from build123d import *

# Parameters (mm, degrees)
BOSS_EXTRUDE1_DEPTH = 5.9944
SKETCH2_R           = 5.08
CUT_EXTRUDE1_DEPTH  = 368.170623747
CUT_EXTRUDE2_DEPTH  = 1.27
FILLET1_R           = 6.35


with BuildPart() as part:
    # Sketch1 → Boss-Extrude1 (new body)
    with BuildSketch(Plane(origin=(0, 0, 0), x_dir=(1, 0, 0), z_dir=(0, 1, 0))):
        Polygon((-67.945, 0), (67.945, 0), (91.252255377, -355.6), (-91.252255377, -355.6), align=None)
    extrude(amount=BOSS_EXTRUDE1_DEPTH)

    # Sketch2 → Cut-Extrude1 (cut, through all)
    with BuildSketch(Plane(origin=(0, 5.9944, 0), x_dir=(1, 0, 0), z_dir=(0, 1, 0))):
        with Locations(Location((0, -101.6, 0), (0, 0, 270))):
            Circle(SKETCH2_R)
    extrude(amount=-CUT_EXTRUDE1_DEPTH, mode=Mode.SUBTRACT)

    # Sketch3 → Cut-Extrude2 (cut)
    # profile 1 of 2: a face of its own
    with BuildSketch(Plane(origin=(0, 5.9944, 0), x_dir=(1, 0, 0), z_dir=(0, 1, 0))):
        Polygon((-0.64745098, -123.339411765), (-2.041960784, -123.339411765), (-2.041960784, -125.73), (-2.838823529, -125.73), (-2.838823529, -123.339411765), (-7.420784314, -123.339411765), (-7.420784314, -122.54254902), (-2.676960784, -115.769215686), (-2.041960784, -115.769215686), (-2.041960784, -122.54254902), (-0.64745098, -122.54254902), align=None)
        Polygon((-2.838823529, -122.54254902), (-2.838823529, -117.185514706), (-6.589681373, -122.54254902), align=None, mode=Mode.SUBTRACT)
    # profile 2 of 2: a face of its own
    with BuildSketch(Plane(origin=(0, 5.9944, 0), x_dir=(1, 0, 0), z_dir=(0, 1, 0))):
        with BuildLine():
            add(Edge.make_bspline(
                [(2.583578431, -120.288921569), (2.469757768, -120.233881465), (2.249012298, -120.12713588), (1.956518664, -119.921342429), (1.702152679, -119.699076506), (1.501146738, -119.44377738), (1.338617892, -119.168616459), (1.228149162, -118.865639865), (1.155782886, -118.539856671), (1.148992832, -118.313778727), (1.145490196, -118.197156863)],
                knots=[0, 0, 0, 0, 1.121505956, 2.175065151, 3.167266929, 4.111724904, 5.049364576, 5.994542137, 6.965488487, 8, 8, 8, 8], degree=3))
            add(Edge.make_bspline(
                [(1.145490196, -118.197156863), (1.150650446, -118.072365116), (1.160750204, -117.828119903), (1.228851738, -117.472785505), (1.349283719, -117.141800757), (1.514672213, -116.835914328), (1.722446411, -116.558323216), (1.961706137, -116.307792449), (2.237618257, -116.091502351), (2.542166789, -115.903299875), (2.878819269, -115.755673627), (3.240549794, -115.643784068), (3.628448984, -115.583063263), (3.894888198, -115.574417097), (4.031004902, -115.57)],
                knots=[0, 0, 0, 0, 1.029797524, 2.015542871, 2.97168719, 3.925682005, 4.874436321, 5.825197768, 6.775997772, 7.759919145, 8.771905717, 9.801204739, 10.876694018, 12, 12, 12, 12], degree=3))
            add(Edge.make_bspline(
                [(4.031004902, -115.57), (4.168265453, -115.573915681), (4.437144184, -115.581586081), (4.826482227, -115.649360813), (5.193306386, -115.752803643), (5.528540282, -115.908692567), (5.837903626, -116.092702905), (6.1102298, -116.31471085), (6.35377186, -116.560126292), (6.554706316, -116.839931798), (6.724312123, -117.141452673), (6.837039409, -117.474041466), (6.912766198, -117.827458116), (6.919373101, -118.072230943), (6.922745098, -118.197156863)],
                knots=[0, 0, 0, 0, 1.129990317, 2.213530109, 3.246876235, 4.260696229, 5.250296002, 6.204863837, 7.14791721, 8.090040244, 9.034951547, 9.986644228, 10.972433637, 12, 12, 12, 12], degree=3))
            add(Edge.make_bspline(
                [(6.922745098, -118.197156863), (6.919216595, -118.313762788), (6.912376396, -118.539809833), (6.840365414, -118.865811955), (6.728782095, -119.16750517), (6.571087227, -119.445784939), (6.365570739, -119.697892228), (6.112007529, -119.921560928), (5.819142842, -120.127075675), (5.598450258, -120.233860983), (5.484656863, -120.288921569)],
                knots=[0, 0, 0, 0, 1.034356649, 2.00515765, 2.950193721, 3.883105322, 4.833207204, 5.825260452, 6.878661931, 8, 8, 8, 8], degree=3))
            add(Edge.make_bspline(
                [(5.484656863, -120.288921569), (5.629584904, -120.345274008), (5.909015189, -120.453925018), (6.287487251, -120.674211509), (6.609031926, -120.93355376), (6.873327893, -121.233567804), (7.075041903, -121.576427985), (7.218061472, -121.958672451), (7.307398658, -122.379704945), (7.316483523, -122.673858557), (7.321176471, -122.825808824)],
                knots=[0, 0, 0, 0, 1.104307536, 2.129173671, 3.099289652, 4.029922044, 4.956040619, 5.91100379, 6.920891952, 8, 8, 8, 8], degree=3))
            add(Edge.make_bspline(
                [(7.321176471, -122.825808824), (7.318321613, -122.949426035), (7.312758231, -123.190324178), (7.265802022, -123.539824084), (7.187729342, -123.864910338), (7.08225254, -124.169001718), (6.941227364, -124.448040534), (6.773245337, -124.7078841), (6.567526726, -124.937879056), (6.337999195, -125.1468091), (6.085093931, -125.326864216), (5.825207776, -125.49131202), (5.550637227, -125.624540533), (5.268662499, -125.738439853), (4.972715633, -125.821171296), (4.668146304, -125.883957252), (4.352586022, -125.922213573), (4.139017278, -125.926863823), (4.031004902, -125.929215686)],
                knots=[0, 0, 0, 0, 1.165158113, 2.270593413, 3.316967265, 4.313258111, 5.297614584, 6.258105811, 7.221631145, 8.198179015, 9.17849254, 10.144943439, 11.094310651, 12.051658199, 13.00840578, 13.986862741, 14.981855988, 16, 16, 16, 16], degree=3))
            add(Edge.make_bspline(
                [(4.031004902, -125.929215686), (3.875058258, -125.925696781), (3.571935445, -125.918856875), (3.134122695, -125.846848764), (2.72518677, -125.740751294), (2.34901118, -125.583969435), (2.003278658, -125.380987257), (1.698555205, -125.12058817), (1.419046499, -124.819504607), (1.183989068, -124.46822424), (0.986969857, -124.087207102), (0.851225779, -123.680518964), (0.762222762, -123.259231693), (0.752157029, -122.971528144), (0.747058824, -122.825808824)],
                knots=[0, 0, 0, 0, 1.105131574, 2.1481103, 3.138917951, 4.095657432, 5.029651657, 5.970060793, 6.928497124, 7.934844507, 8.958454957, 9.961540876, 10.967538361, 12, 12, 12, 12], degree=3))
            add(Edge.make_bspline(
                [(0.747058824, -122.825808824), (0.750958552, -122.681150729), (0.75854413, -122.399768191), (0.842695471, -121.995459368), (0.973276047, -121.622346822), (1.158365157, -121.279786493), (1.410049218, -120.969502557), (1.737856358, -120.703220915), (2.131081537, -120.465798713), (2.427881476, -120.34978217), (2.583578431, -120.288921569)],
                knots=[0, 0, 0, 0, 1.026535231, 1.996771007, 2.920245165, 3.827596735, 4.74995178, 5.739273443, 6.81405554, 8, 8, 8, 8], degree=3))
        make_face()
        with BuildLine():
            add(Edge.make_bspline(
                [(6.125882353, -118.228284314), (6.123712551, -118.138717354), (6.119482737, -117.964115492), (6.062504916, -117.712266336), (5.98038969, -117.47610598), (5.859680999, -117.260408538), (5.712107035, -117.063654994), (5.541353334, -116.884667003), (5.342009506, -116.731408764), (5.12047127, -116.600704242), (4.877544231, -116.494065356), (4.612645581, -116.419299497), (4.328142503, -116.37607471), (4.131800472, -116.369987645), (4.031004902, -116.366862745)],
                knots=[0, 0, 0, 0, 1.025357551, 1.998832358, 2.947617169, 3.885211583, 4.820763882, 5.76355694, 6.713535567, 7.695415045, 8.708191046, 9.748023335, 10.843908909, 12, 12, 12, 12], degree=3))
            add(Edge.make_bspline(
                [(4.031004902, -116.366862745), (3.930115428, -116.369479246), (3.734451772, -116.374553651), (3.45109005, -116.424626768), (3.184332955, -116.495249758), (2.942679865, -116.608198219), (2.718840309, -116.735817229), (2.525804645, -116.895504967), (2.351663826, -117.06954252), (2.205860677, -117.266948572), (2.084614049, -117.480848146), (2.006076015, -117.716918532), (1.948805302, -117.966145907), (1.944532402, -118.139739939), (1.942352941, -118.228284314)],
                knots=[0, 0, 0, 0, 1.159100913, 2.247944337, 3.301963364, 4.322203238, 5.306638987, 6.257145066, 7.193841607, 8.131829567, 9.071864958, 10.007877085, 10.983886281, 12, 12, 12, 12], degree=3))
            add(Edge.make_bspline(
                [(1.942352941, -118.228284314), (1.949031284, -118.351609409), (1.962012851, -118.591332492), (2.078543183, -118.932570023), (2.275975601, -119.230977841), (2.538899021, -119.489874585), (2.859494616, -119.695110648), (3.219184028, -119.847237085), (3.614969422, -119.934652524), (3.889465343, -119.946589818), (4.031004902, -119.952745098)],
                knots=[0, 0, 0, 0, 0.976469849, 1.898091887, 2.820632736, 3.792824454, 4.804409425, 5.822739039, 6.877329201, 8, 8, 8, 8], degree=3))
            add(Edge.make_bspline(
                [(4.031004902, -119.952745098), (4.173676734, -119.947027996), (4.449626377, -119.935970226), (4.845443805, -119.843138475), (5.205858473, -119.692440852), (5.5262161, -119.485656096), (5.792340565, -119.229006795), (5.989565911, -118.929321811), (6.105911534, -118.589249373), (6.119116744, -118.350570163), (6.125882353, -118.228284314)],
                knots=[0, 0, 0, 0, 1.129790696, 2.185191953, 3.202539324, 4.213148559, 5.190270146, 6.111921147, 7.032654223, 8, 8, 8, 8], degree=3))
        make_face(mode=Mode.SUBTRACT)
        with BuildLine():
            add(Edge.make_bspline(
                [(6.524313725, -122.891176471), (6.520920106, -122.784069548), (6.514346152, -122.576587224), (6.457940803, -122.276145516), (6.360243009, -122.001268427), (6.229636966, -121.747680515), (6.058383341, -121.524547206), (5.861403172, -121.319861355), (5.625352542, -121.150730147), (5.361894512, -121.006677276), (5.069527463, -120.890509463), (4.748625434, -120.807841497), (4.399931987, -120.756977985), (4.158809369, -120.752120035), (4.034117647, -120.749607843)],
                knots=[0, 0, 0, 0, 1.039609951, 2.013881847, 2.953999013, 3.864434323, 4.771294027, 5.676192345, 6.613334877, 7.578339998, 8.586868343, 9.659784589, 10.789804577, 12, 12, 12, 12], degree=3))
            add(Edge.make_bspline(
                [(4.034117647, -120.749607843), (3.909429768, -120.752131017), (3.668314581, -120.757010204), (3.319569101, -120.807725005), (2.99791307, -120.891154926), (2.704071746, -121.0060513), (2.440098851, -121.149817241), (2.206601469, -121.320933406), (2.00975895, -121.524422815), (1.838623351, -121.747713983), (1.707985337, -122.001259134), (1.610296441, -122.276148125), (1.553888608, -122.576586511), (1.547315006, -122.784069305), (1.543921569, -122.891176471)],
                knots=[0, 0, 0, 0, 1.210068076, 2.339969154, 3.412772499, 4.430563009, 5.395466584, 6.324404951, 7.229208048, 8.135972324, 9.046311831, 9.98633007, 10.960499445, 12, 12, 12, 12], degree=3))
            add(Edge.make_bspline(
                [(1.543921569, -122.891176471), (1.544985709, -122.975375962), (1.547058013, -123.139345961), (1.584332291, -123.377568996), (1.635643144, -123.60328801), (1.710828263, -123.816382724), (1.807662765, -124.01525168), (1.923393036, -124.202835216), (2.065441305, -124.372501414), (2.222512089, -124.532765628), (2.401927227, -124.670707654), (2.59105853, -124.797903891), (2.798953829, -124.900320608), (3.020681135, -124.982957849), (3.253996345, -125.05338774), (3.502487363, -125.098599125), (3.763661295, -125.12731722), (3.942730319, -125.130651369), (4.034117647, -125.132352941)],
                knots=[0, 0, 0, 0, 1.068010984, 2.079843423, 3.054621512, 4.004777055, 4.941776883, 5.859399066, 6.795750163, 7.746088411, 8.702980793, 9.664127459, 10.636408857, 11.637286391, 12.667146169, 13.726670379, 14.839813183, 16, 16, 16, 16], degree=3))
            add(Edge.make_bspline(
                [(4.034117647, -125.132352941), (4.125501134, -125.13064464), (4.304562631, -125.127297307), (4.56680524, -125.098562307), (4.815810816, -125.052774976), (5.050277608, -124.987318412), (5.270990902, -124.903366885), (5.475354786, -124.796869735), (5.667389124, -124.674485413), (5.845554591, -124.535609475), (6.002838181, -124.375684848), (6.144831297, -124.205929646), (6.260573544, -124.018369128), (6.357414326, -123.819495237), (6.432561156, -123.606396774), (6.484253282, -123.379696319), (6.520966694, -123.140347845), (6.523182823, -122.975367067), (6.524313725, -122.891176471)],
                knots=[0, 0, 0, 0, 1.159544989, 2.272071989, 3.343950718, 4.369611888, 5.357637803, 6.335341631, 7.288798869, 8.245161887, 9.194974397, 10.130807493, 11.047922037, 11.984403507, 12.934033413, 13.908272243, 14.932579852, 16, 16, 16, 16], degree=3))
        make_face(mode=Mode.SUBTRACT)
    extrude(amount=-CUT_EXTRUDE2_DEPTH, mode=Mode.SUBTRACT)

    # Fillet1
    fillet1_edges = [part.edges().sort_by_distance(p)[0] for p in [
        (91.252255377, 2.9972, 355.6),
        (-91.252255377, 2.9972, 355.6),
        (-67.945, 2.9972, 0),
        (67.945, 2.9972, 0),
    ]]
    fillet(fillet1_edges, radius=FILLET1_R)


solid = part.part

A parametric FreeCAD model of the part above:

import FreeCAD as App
import Part
import Sketcher

V = App.Vector
Q = App.Units.Quantity


def edges_at(feature, points):
    """Names of the edges that pass closest to the given points."""
    edges = feature.Shape.Edges
    near = lambda p: min(range(len(edges)), key=lambda i: edges[i].distToShape(Part.Vertex(*p))[0])
    return sorted({f"Edge{near(p) + 1}" for p in points})


def add_polygon(sketch, points):
    """Adds a closed chain of lines whose ends are joined by coincident constraints."""
    first, n = sketch.GeometryCount, len(points)
    for a, b in zip(points, points[1:] + points[:1]):
        sketch.addGeometry(Part.LineSegment(App.Vector(*a, 0), App.Vector(*b, 0)), False)
    for i in range(n):
        sketch.addConstraint(Sketcher.Constraint("Coincident", first + i, 2, first + (i + 1) % n, 1))

doc = App.newDocument("Part")
body = doc.addObject("PartDesign::Body", "Body")

# Sketch on XZ plane
sketch1 = body.newObject("Sketcher::SketchObject", "Sketch")
sketch1.AttachmentSupport = (doc.getObject("XZ_Plane"), [""])
sketch1.MapMode = "FlatFace"
add_polygon(sketch1, [(67.945, 0), (-67.945, 0), (-91.252255, 355.6), (91.252255, 355.6)])  # lines 0-3
sketch1.addConstraint([
    Sketcher.Constraint("Horizontal", 0),
    Sketcher.Constraint("Horizontal", 2),
    Sketcher.Constraint("Symmetric", 0, 2, 3, 2, -1, 1),
    Sketcher.Constraint("Equal", 1, 3),
    Sketcher.Constraint("DistanceY", -1, 1, 1, 2, Q("14 in")),
    Sketcher.Constraint("DistanceX", 0, 2, 0, 1, Q("5.35 in")),
    Sketcher.Constraint("Angle", 1, Q("93.75 deg")),
])
pad1 = body.newObject("PartDesign::Pad", "Pad")
pad1.Profile = sketch1
pad1.Length = Q("0.236 in")
pad1.Reversed = True

# Sketch on XZ plane
sketch2 = body.newObject("Sketcher::SketchObject", "Sketch001")
sketch2.AttachmentSupport = (doc.getObject("XZ_Plane"), [""])
sketch2.MapMode = "FlatFace"
sketch2.AttachmentOffset = App.Placement(V(0, 0, -0.236 * 25.4), App.Rotation())
sketch2.addGeometry(Part.Circle(V(0, 101.6, 0), V(0, 0, 1), 5.08), False)
sketch2.addConstraint([
    Sketcher.Constraint("PointOnObject", 0, 3, -2),
    Sketcher.Constraint("Diameter", 0, Q("0.4 in")),
    Sketcher.Constraint("DistanceY", -1, 1, 0, 3, Q("4 in")),
])
pocket1 = body.newObject("PartDesign::Pocket", "Pocket")
pocket1.Profile = sketch2
pocket1.Type = "ThroughAll"
pocket1.Reversed = True

# Sketch on XZ plane
sketch3 = body.newObject("Sketcher::SketchObject", "Sketch002")
sketch3.AttachmentSupport = (doc.getObject("XZ_Plane"), [""])
sketch3.MapMode = "FlatFace"
sketch3.AttachmentOffset = App.Placement(V(0, 0, -0.236 * 25.4), App.Rotation())
add_polygon(sketch3, [(-2.041961, 123.339412), (-0.647451, 123.339412), (-0.647451, 122.542549), (-2.041961, 122.542549), (-2.041961, 115.769216), (-2.676961, 115.769216), (-7.420784, 122.542549), (-7.420784, 123.339412), (-2.838824, 123.339412), (-2.838824, 125.73), (-2.041961, 125.73)])  # lines 0-10
add_polygon(sketch3, [(-2.838824, 122.542549), (-6.589681, 122.542549), (-2.838824, 117.185515)])  # lines 11-13
sketch3.addGeometry(Part.BSplineCurve([V(2.583578, 120.288922, 0), V(2.469758, 120.233881, 0), V(2.249012, 120.127136, 0), V(1.956519, 119.921342, 0), V(1.702153, 119.699077, 0), V(1.501147, 119.443777, 0), V(1.338618, 119.168616, 0), V(1.228149, 118.86564, 0), V(1.155783, 118.539857, 0), V(1.148993, 118.313779, 0), V(1.14549, 118.197157, 0)], [4, 1, 1, 1, 1, 1, 1, 1, 4], [0, 1.121505956, 2.175065151, 3.167266929, 4.111724904, 5.049364576, 5.994542137, 6.965488487, 8], False, 3, [1, 1, 1, 1, 1, 1, 1, 1, 1, 1, 1], False), False)  # 14
sketch3.addGeometry(Part.BSplineCurve([V(0.747059, 122.825809, 0), V(0.750959, 122.681151, 0), V(0.758544, 122.399768, 0), V(0.842695, 121.995459, 0), V(0.973276, 121.622347, 0), V(1.158365, 121.279786, 0), V(1.410049, 120.969503, 0), V(1.737856, 120.703221, 0), V(2.131082, 120.465799, 0), V(2.427881, 120.349782, 0), V(2.583578, 120.288922, 0)], [4, 1, 1, 1, 1, 1, 1, 1, 4], [0, 1.026535231, 1.996771007, 2.920245165, 3.827596735, 4.74995178, 5.739273443, 6.81405554, 8], False, 3, [1, 1, 1, 1, 1, 1, 1, 1, 1, 1, 1], False), False)  # 15
sketch3.addGeometry(Part.BSplineCurve([V(4.031005, 125.929216, 0), V(3.875058, 125.925697, 0), V(3.571935, 125.918857, 0), V(3.134123, 125.846849, 0), V(2.725187, 125.740751, 0), V(2.349011, 125.583969, 0), V(2.003279, 125.380987, 0), V(1.698555, 125.120588, 0), V(1.419046, 124.819505, 0), V(1.183989, 124.468224, 0), V(0.98697, 124.087207, 0), V(0.851226, 123.680519, 0), V(0.762223, 123.259232, 0), V(0.752157, 122.971528, 0), V(0.747059, 122.825809, 0)], [4, 1, 1, 1, 1, 1, 1, 1, 1, 1, 1, 1, 4], [0, 1.105131574, 2.1481103, 3.138917951, 4.095657432, 5.029651657, 5.970060793, 6.928497124, 7.934844507, 8.958454957, 9.961540876, 10.967538361, 12], False, 3, [1, 1, 1, 1, 1, 1, 1, 1, 1, 1, 1, 1, 1, 1, 1], False), False)  # 16
sketch3.addGeometry(Part.BSplineCurve([V(7.321176, 122.825809, 0), V(7.318322, 122.949426, 0), V(7.312758, 123.190324, 0), V(7.265802, 123.539824, 0), V(7.187729, 123.86491, 0), V(7.082253, 124.169002, 0), V(6.941227, 124.448041, 0), V(6.773245, 124.707884, 0), V(6.567527, 124.937879, 0), V(6.337999, 125.146809, 0), V(6.085094, 125.326864, 0), V(5.825208, 125.491312, 0), V(5.550637, 125.624541, 0), V(5.268662, 125.73844, 0), V(4.972716, 125.821171, 0), V(4.668146, 125.883957, 0), V(4.352586, 125.922214, 0), V(4.139017, 125.926864, 0), V(4.031005, 125.929216, 0)], [4, 1, 1, 1, 1, 1, 1, 1, 1, 1, 1, 1, 1, 1, 1, 1, 4], [0, 1.165158113, 2.270593413, 3.316967265, 4.313258111, 5.297614584, 6.258105811, 7.221631145, 8.198179015, 9.17849254, 10.144943439, 11.094310651, 12.051658199, 13.00840578, 13.986862741, 14.981855988, 16], False, 3, [1, 1, 1, 1, 1, 1, 1, 1, 1, 1, 1, 1, 1, 1, 1, 1, 1, 1, 1], False), False)  # 17
sketch3.addGeometry(Part.BSplineCurve([V(5.484657, 120.288922, 0), V(5.629585, 120.345274, 0), V(5.909015, 120.453925, 0), V(6.287487, 120.674212, 0), V(6.609032, 120.933554, 0), V(6.873328, 121.233568, 0), V(7.075042, 121.576428, 0), V(7.218061, 121.958672, 0), V(7.307399, 122.379705, 0), V(7.316484, 122.673859, 0), V(7.321176, 122.825809, 0)], [4, 1, 1, 1, 1, 1, 1, 1, 4], [0, 1.104307536, 2.129173671, 3.099289652, 4.029922044, 4.956040619, 5.91100379, 6.920891952, 8], False, 3, [1, 1, 1, 1, 1, 1, 1, 1, 1, 1, 1], False), False)  # 18
sketch3.addGeometry(Part.BSplineCurve([V(6.922745, 118.197157, 0), V(6.919217, 118.313763, 0), V(6.912376, 118.53981, 0), V(6.840365, 118.865812, 0), V(6.728782, 119.167505, 0), V(6.571087, 119.445785, 0), V(6.365571, 119.697892, 0), V(6.112008, 119.921561, 0), V(5.819143, 120.127076, 0), V(5.59845, 120.233861, 0), V(5.484657, 120.288922, 0)], [4, 1, 1, 1, 1, 1, 1, 1, 4], [0, 1.034356649, 2.00515765, 2.950193721, 3.883105322, 4.833207204, 5.825260452, 6.878661931, 8], False, 3, [1, 1, 1, 1, 1, 1, 1, 1, 1, 1, 1], False), False)  # 19
sketch3.addGeometry(Part.BSplineCurve([V(4.031005, 115.57, 0), V(4.168265, 115.573916, 0), V(4.437144, 115.581586, 0), V(4.826482, 115.649361, 0), V(5.193306, 115.752804, 0), V(5.52854, 115.908693, 0), V(5.837904, 116.092703, 0), V(6.11023, 116.314711, 0), V(6.353772, 116.560126, 0), V(6.554706, 116.839932, 0), V(6.724312, 117.141453, 0), V(6.837039, 117.474041, 0), V(6.912766, 117.827458, 0), V(6.919373, 118.072231, 0), V(6.922745, 118.197157, 0)], [4, 1, 1, 1, 1, 1, 1, 1, 1, 1, 1, 1, 4], [0, 1.129990317, 2.213530109, 3.246876235, 4.260696229, 5.250296002, 6.204863837, 7.14791721, 8.090040244, 9.034951547, 9.986644228, 10.972433637, 12], False, 3, [1, 1, 1, 1, 1, 1, 1, 1, 1, 1, 1, 1, 1, 1, 1], False), False)  # 20
sketch3.addGeometry(Part.BSplineCurve([V(1.14549, 118.197157, 0), V(1.15065, 118.072365, 0), V(1.16075, 117.82812, 0), V(1.228852, 117.472786, 0), V(1.349284, 117.141801, 0), V(1.514672, 116.835914, 0), V(1.722446, 116.558323, 0), V(1.961706, 116.307792, 0), V(2.237618, 116.091502, 0), V(2.542167, 115.9033, 0), V(2.878819, 115.755674, 0), V(3.24055, 115.643784, 0), V(3.628449, 115.583063, 0), V(3.894888, 115.574417, 0), V(4.031005, 115.57, 0)], [4, 1, 1, 1, 1, 1, 1, 1, 1, 1, 1, 1, 4], [0, 1.029797524, 2.015542871, 2.97168719, 3.925682005, 4.874436321, 5.825197768, 6.775997772, 7.759919145, 8.771905717, 9.801204739, 10.876694018, 12], False, 3, [1, 1, 1, 1, 1, 1, 1, 1, 1, 1, 1, 1, 1, 1, 1], False), False)  # 21
sketch3.addGeometry(Part.BSplineCurve([V(4.034118, 125.132353, 0), V(4.125501, 125.130645, 0), V(4.304563, 125.127297, 0), V(4.566805, 125.098562, 0), V(4.815811, 125.052775, 0), V(5.050278, 124.987318, 0), V(5.270991, 124.903367, 0), V(5.475355, 124.79687, 0), V(5.667389, 124.674485, 0), V(5.845555, 124.535609, 0), V(6.002838, 124.375685, 0), V(6.144831, 124.20593, 0), V(6.260574, 124.018369, 0), V(6.357414, 123.819495, 0), V(6.432561, 123.606397, 0), V(6.484253, 123.379696, 0), V(6.520967, 123.140348, 0), V(6.523183, 122.975367, 0), V(6.524314, 122.891176, 0)], [4, 1, 1, 1, 1, 1, 1, 1, 1, 1, 1, 1, 1, 1, 1, 1, 4], [0, 1.159544989, 2.272071989, 3.343950718, 4.369611888, 5.357637803, 6.335341631, 7.288798869, 8.245161887, 9.194974397, 10.130807493, 11.047922037, 11.984403507, 12.934033413, 13.908272243, 14.932579852, 16], False, 3, [1, 1, 1, 1, 1, 1, 1, 1, 1, 1, 1, 1, 1, 1, 1, 1, 1, 1, 1], False), False)  # 22
sketch3.addGeometry(Part.BSplineCurve([V(1.543922, 122.891176, 0), V(1.544986, 122.975376, 0), V(1.547058, 123.139346, 0), V(1.584332, 123.377569, 0), V(1.635643, 123.603288, 0), V(1.710828, 123.816383, 0), V(1.807663, 124.015252, 0), V(1.923393, 124.202835, 0), V(2.065441, 124.372501, 0), V(2.222512, 124.532766, 0), V(2.401927, 124.670708, 0), V(2.591059, 124.797904, 0), V(2.798954, 124.900321, 0), V(3.020681, 124.982958, 0), V(3.253996, 125.053388, 0), V(3.502487, 125.098599, 0), V(3.763661, 125.127317, 0), V(3.94273, 125.130651, 0), V(4.034118, 125.132353, 0)], [4, 1, 1, 1, 1, 1, 1, 1, 1, 1, 1, 1, 1, 1, 1, 1, 4], [0, 1.068010984, 2.079843423, 3.054621512, 4.004777055, 4.941776883, 5.859399066, 6.795750163, 7.746088411, 8.702980793, 9.664127459, 10.636408857, 11.637286391, 12.667146169, 13.726670379, 14.839813183, 16], False, 3, [1, 1, 1, 1, 1, 1, 1, 1, 1, 1, 1, 1, 1, 1, 1, 1, 1, 1, 1], False), False)  # 23
sketch3.addGeometry(Part.BSplineCurve([V(4.034118, 120.749608, 0), V(3.90943, 120.752131, 0), V(3.668315, 120.75701, 0), V(3.319569, 120.807725, 0), V(2.997913, 120.891155, 0), V(2.704072, 121.006051, 0), V(2.440099, 121.149817, 0), V(2.206601, 121.320933, 0), V(2.009759, 121.524423, 0), V(1.838623, 121.747714, 0), V(1.707985, 122.001259, 0), V(1.610296, 122.276148, 0), V(1.553889, 122.576587, 0), V(1.547315, 122.784069, 0), V(1.543922, 122.891176, 0)], [4, 1, 1, 1, 1, 1, 1, 1, 1, 1, 1, 1, 4], [0, 1.210068076, 2.339969154, 3.412772499, 4.430563009, 5.395466584, 6.324404951, 7.229208048, 8.135972324, 9.046311831, 9.98633007, 10.960499445, 12], False, 3, [1, 1, 1, 1, 1, 1, 1, 1, 1, 1, 1, 1, 1, 1, 1], False), False)  # 24
sketch3.addGeometry(Part.BSplineCurve([V(6.524314, 122.891176, 0), V(6.52092, 122.78407, 0), V(6.514346, 122.576587, 0), V(6.457941, 122.276146, 0), V(6.360243, 122.001268, 0), V(6.229637, 121.747681, 0), V(6.058383, 121.524547, 0), V(5.861403, 121.319861, 0), V(5.625353, 121.15073, 0), V(5.361895, 121.006677, 0), V(5.069527, 120.890509, 0), V(4.748625, 120.807841, 0), V(4.399932, 120.756978, 0), V(4.158809, 120.75212, 0), V(4.034118, 120.749608, 0)], [4, 1, 1, 1, 1, 1, 1, 1, 1, 1, 1, 1, 4], [0, 1.039609951, 2.013881847, 2.953999013, 3.864434323, 4.771294027, 5.676192345, 6.613334877, 7.578339998, 8.586868343, 9.659784589, 10.789804577, 12], False, 3, [1, 1, 1, 1, 1, 1, 1, 1, 1, 1, 1, 1, 1, 1, 1], False), False)  # 25
sketch3.addGeometry(Part.BSplineCurve([V(4.031005, 119.952745, 0), V(4.173677, 119.947028, 0), V(4.449626, 119.93597, 0), V(4.845444, 119.843138, 0), V(5.205858, 119.692441, 0), V(5.526216, 119.485656, 0), V(5.792341, 119.229007, 0), V(5.989566, 118.929322, 0), V(6.105912, 118.589249, 0), V(6.119117, 118.35057, 0), V(6.125882, 118.228284, 0)], [4, 1, 1, 1, 1, 1, 1, 1, 4], [0, 1.129790696, 2.185191953, 3.202539324, 4.213148559, 5.190270146, 6.111921147, 7.032654223, 8], False, 3, [1, 1, 1, 1, 1, 1, 1, 1, 1, 1, 1], False), False)  # 26
sketch3.addGeometry(Part.BSplineCurve([V(1.942353, 118.228284, 0), V(1.949031, 118.351609, 0), V(1.962013, 118.591332, 0), V(2.078543, 118.93257, 0), V(2.275976, 119.230978, 0), V(2.538899, 119.489875, 0), V(2.859495, 119.695111, 0), V(3.219184, 119.847237, 0), V(3.614969, 119.934653, 0), V(3.889465, 119.94659, 0), V(4.031005, 119.952745, 0)], [4, 1, 1, 1, 1, 1, 1, 1, 4], [0, 0.976469849, 1.898091887, 2.820632736, 3.792824454, 4.804409425, 5.822739039, 6.877329201, 8], False, 3, [1, 1, 1, 1, 1, 1, 1, 1, 1, 1, 1], False), False)  # 27
sketch3.addGeometry(Part.BSplineCurve([V(4.031005, 116.366863, 0), V(3.930115, 116.369479, 0), V(3.734452, 116.374554, 0), V(3.45109, 116.424627, 0), V(3.184333, 116.49525, 0), V(2.94268, 116.608198, 0), V(2.71884, 116.735817, 0), V(2.525805, 116.895505, 0), V(2.351664, 117.069543, 0), V(2.205861, 117.266949, 0), V(2.084614, 117.480848, 0), V(2.006076, 117.716919, 0), V(1.948805, 117.966146, 0), V(1.944532, 118.13974, 0), V(1.942353, 118.228284, 0)], [4, 1, 1, 1, 1, 1, 1, 1, 1, 1, 1, 1, 4], [0, 1.159100913, 2.247944337, 3.301963364, 4.322203238, 5.306638987, 6.257145066, 7.193841607, 8.131829567, 9.071864958, 10.007877085, 10.983886281, 12], False, 3, [1, 1, 1, 1, 1, 1, 1, 1, 1, 1, 1, 1, 1, 1, 1], False), False)  # 28
sketch3.addGeometry(Part.BSplineCurve([V(6.125882, 118.228284, 0), V(6.123713, 118.138717, 0), V(6.119483, 117.964115, 0), V(6.062505, 117.712266, 0), V(5.98039, 117.476106, 0), V(5.859681, 117.260409, 0), V(5.712107, 117.063655, 0), V(5.541353, 116.884667, 0), V(5.34201, 116.731409, 0), V(5.120471, 116.600704, 0), V(4.877544, 116.494065, 0), V(4.612646, 116.419299, 0), V(4.328143, 116.376075, 0), V(4.1318, 116.369988, 0), V(4.031005, 116.366863, 0)], [4, 1, 1, 1, 1, 1, 1, 1, 1, 1, 1, 1, 4], [0, 1.025357551, 1.998832358, 2.947617169, 3.885211583, 4.820763882, 5.76355694, 6.713535567, 7.695415045, 8.708191046, 9.748023335, 10.843908909, 12], False, 3, [1, 1, 1, 1, 1, 1, 1, 1, 1, 1, 1, 1, 1, 1, 1], False), False)  # 29
sketch3.addConstraint([
    Sketcher.Constraint("Block", 14),
    Sketcher.Constraint("Block", 15),
    Sketcher.Constraint("Block", 16),
    Sketcher.Constraint("Block", 17),
    Sketcher.Constraint("Block", 18),
    Sketcher.Constraint("Block", 19),
    Sketcher.Constraint("Block", 20),
    Sketcher.Constraint("Block", 21),
    Sketcher.Constraint("Block", 22),
    Sketcher.Constraint("Block", 23),
    Sketcher.Constraint("Block", 24),
    Sketcher.Constraint("Block", 25),
    Sketcher.Constraint("Block", 26),
    Sketcher.Constraint("Block", 27),
    Sketcher.Constraint("Block", 28),
    Sketcher.Constraint("Block", 29),
    Sketcher.Constraint("Horizontal", 0),
    Sketcher.Constraint("Vertical", 1),
    Sketcher.Constraint("Horizontal", 2),
    Sketcher.Constraint("Vertical", 3),
    Sketcher.Constraint("Horizontal", 4),
    Sketcher.Constraint("Vertical", 6),
    Sketcher.Constraint("Horizontal", 7),
    Sketcher.Constraint("Vertical", 8),
    Sketcher.Constraint("Horizontal", 9),
    Sketcher.Constraint("Vertical", 10),
    Sketcher.Constraint("Horizontal", 11),
    Sketcher.Constraint("Vertical", 13),
    Sketcher.Constraint("Horizontal", 2, 2, 5, 2),
    Sketcher.Constraint("Horizontal", 0, 2, 6, 2),
    Sketcher.Constraint("Horizontal", 5, 2, 11, 2),
    Sketcher.Constraint("Vertical", 3, 2, 9, 2),
    Sketcher.Constraint("Vertical", 8, 2, 12, 2),
    Sketcher.Constraint("Equal", 9, 1),
    Sketcher.Constraint("DistanceX", 4, 2, 4, 1, Q("0.025 in")),
    Sketcher.Constraint("DistanceY", -1, 1, 8, 2, Q("4.95 in")),
    Sketcher.Constraint("DistanceX", 0, 1, 0, 2, 1.39451),
    Sketcher.Constraint("DistanceX", 7, 1, 7, 2, 4.581961),
    Sketcher.Constraint("DistanceY", 8, 1, 8, 2, 2.390588),
    Sketcher.Constraint("DistanceY", 4, 2, 12, 2, 1.416299),
    Sketcher.Constraint("Distance", 12, 6.539629),
    Sketcher.Constraint("DistanceX", 9, 1, 9, 2, 0.796863),
    Sketcher.Constraint("DistanceX", 11, 2, 11, 1, 3.750858),
    Sketcher.Constraint("DistanceX", 0, 2, -1, 1, 0.647451),
])
pocket2 = body.newObject("PartDesign::Pocket", "Pocket001")
pocket2.Profile = sketch3
pocket2.Length = Q("0.05 in")
pocket2.Reversed = True
doc.recompute()

fillet = body.newObject("PartDesign::Fillet", "Fillet")
fillet.Base = (pocket2, edges_at(pocket2, [
    (91.252, 2.997, 355.6),
    (-91.252, 2.997, 355.6),
    (-67.945, 2.997, 0),
    (67.945, 2.997, 0),
]))
fillet.Radius = Q("0.25 in")

doc.recompute()
